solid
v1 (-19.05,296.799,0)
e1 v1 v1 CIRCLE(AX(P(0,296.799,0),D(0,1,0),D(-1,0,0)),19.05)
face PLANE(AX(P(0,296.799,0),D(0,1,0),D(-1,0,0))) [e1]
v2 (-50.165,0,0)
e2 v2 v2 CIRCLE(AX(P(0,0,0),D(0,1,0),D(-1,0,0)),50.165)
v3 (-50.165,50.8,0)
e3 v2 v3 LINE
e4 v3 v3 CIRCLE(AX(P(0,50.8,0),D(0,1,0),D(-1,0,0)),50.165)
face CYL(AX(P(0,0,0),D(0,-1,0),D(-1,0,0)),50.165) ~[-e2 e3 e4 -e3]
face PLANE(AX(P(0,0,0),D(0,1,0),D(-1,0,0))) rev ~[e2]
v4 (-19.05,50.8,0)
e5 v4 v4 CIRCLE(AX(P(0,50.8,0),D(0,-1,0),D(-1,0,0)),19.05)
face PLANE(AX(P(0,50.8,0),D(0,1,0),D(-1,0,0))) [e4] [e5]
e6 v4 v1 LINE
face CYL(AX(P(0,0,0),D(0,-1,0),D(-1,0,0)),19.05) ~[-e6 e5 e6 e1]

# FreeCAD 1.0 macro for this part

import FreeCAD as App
import Part
import Sketcher
Q = App.Units.Quantity

doc = App.newDocument("Part")
params = doc.addObject("Spreadsheet::Sheet", "Params")
for row, (alias, value) in enumerate([
    ("sketch1_diameter", "3.95 in"),
    ("pad1_length", "2 in"),
    ("sketch2_diameter", "1.5 in"),
    ("pad2_length", "11.685 in"),
], start=1):
    params.set(f"A{row}", alias)
    params.set(f"B{row}", "=" + value)
    params.setAlias(f"B{row}", alias)

body = doc.addObject("PartDesign::Body", "Body")

# Sketch on XZ plane
sketch1 = body.newObject("Sketcher::SketchObject", "Sketch")
sketch1.AttachmentSupport = (doc.getObject("XZ_Plane"), [""])
sketch1.MapMode = "FlatFace"
sketch1.addGeometry(Part.Circle(App.Vector(0, 0, 0), App.Vector(0, 0, 1), 50), False)
sketch1.addConstraint([
    Sketcher.Constraint("Coincident", 0, 3, -1, 1),
    Sketcher.Constraint("Diameter", 0, Q("3.95 in")),
])
sketch1.setExpression("Constraints[1]", "Params.sketch1_diameter")
pad1 = body.newObject("PartDesign::Pad", "Pad")
pad1.Profile = sketch1
pad1.setExpression("Length", "Params.pad1_length")
pad1.Reversed = True

# Sketch on XZ plane
sketch2 = body.newObject("Sketcher::SketchObject", "Sketch001")
sketch2.AttachmentSupport = (doc.getObject("XZ_Plane"), [""])
sketch2.MapMode = "FlatFace"
sketch2.addGeometry(Part.Circle(App.Vector(0, 0, 0), App.Vector(0, 0, 1), 19), False)
sketch2.addConstraint([
    Sketcher.Constraint("Coincident", 0, 3, -1, 1),
    Sketcher.Constraint("Diameter", 0, Q("1.5 in")),
])
sketch2.setExpression("Constraints[1]", "Params.sketch2_diameter")
pad2 = body.newObject("PartDesign::Pad", "Pad001")
pad2.Profile = sketch2
pad2.setExpression("Length", "Params.pad2_length")
pad2.Reversed = True

doc.recompute()
